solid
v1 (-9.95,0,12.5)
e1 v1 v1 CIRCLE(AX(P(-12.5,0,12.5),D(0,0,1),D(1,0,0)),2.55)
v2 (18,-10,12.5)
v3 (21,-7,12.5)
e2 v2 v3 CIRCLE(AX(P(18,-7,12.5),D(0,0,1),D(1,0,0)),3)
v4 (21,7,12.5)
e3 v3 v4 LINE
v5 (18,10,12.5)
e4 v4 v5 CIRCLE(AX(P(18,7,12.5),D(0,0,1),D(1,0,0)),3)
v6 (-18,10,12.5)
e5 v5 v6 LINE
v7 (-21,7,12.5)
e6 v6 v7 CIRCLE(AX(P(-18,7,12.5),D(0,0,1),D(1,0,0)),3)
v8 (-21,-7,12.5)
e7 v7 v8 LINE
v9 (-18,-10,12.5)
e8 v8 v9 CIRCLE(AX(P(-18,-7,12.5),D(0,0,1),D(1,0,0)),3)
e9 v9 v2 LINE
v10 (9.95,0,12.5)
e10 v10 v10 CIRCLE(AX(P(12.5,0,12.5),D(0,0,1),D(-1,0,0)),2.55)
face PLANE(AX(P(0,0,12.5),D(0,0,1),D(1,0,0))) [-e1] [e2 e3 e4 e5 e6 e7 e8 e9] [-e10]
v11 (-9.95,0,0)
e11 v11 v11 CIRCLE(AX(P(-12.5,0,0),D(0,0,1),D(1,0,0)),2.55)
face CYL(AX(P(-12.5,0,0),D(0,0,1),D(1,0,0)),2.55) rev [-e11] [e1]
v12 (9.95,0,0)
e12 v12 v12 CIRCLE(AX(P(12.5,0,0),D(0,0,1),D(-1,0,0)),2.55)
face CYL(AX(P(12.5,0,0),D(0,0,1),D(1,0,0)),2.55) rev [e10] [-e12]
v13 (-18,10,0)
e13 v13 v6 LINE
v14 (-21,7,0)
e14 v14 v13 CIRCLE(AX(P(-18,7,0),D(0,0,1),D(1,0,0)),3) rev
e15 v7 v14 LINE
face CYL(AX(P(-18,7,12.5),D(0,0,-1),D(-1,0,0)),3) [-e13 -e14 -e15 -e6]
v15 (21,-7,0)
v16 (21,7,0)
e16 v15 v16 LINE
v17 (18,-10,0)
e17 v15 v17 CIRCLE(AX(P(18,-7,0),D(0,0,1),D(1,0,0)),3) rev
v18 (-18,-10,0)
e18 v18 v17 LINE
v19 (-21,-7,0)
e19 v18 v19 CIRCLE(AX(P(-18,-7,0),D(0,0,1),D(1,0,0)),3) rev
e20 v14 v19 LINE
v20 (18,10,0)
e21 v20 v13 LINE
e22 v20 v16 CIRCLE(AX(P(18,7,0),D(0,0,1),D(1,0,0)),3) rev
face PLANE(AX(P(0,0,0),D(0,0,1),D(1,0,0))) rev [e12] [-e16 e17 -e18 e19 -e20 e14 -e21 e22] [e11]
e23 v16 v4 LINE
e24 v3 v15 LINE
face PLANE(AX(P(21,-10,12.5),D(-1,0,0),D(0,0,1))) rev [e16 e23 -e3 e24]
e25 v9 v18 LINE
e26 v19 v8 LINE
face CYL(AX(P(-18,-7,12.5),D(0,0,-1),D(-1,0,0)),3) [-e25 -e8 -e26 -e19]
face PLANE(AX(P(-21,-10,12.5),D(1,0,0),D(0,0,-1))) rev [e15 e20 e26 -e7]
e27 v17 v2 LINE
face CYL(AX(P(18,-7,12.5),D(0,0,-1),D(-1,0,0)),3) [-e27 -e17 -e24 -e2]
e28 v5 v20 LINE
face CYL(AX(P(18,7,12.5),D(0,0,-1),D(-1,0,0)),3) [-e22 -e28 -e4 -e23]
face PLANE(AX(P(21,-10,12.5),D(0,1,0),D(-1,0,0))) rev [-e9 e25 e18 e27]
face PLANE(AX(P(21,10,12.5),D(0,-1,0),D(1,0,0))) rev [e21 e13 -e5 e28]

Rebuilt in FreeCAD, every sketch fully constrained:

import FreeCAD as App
import Part
import Sketcher


def edges_at(feature, points):
    """Names of the edges that pass closest to the given points."""
    edges = feature.Shape.Edges
    near = lambda p: min(range(len(edges)), key=lambda i: edges[i].distToShape(Part.Vertex(*p))[0])
    return sorted({f"Edge{near(p) + 1}" for p in points})


def add_polygon(sketch, points):
    """Adds a closed chain of lines whose ends are joined by coincident constraints."""
    first, n = sketch.GeometryCount, len(points)
    for a, b in zip(points, points[1:] + points[:1]):
        sketch.addGeometry(Part.LineSegment(App.Vector(*a, 0), App.Vector(*b, 0)), False)
    for i in range(n):
        sketch.addConstraint(Sketcher.Constraint("Coincident", first + i, 2, first + (i + 1) % n, 1))

doc = App.newDocument("Part")
body = doc.addObject("PartDesign::Body", "Body")

# Sketch on XY plane
sketch1 = body.newObject("Sketcher::SketchObject", "Sketch")
sketch1.AttachmentSupport = (doc.getObject("XY_Plane"), [""])
sketch1.MapMode = "FlatFace"
add_polygon(sketch1, [(-21, 10), (-21, -10), (21, -10), (21, 10)])  # lines 0-3
sketch1.addConstraint(Sketcher.Constraint("Vertical", 0))
sketch1.addConstraint(Sketcher.Constraint("Horizontal", 1))
sketch1.addConstraint(Sketcher.Constraint("Vertical", 2))
sketch1.addConstraint(Sketcher.Constraint("Horizontal", 3))
sketch1.addConstraint(Sketcher.Constraint("Symmetric", 0, 2, 2, 2, -1, 1))
sketch1.addConstraint(Sketcher.Constraint("DistanceX", 1, 1, 1, 2, 42.0))
sketch1.addConstraint(Sketcher.Constraint("DistanceY", 0, 2, 0, 1, 20.0))
pad1 = body.newObject("PartDesign::Pad", "Pad")
pad1.Profile = sketch1
pad1.Length = 12.5

# Sketch on XY plane
sketch2 = body.newObject("Sketcher::SketchObject", "Sketch001")
sketch2.AttachmentSupport = (doc.getObject("XY_Plane"), [""])
sketch2.MapMode = "FlatFace"
sketch2.AttachmentOffset = App.Placement(App.Vector(0, 0, 12.5), App.Rotation())
sketch2.addGeometry(Part.Circle(App.Vector(-12.5, 0, 0), App.Vector(0, 0, 1), 2.5), False)
sketch2.addGeometry(Part.Circle(App.Vector(12.5, 0, 0), App.Vector(0, 0, 1), 2.5), False)
sketch2.addConstraint(Sketcher.Constraint("Equal", 0, 1))
sketch2.addConstraint(Sketcher.Constraint("Symmetric", 0, 3, 1, 3, -1, 1))
sketch2.addConstraint(Sketcher.Constraint("PointOnObject", 0, 3, -1))
sketch2.addConstraint(Sketcher.Constraint("Diameter", 0, 5.1))
sketch2.addConstraint(Sketcher.Constraint("DistanceX", 0, 3, 1, 3, 25.0))
pocket1 = body.newObject("PartDesign::Pocket", "Pocket")
pocket1.Profile = sketch2
pocket1.Type = "ThroughAll"
doc.recompute()

fillet = body.newObject("PartDesign::Fillet", "Fillet")
fillet.Base = (pocket1, edges_at(pocket1, [
    (-21, 10, 6.25),
    (21, 10, 6.25),
    (21, -10, 6.25),
    (-21, -10, 6.25),
]))
fillet.Radius = 3

doc.recompute()
